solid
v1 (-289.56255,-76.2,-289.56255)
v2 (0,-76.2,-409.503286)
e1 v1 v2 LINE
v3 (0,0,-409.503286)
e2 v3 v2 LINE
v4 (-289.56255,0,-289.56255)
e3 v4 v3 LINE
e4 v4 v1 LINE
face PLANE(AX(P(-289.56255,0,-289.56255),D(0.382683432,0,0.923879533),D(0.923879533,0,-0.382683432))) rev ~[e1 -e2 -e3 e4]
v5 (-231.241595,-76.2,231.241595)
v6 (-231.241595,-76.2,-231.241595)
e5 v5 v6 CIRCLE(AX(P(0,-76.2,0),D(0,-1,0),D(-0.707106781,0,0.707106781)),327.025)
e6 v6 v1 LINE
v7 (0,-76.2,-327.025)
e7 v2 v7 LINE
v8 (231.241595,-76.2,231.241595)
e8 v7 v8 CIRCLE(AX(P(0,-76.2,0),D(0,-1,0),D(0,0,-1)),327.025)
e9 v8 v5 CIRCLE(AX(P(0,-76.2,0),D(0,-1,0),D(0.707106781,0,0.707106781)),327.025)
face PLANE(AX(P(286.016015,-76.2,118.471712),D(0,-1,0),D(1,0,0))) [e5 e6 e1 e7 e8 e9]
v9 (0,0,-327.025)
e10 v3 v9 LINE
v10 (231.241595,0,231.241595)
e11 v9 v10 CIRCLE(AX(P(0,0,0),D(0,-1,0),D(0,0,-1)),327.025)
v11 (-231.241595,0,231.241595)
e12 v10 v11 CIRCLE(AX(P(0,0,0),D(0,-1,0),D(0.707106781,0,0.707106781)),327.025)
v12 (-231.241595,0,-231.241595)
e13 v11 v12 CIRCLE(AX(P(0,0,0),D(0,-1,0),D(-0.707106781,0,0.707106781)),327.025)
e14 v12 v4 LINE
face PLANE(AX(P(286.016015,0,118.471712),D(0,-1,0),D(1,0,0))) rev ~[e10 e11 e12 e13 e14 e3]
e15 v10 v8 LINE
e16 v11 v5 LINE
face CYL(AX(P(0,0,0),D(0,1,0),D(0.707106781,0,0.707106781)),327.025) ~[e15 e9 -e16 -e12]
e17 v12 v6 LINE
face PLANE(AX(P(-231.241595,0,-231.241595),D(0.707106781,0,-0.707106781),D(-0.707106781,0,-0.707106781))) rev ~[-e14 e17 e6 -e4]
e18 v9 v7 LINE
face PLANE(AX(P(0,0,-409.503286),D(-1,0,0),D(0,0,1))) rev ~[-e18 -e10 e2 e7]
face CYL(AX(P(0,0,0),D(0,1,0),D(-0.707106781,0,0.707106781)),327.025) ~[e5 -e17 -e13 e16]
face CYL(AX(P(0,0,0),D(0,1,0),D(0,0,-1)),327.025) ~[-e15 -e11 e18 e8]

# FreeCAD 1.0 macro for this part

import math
import FreeCAD as App
import Part
import Sketcher

V = App.Vector
Q = App.Units.Quantity

doc = App.newDocument("Part")
body = doc.addObject("PartDesign::Body", "Body")

# Sketch on XZ plane
sketch1 = body.newObject("Sketcher::SketchObject", "Sketch")
sketch1.AttachmentSupport = (doc.getObject("XZ_Plane"), [""])
sketch1.MapMode = "FlatFace"
sketch1.addGeometry([
    Part.ArcOfCircle(Part.Circle(V(0, 0, 0), V(0, 0, 1), 327), math.radians(45), math.radians(135)),  # 0
    Part.ArcOfCircle(Part.Circle(V(0, 0, 0), V(0, 0, 1), 327), math.radians(135), math.radians(225)),  # 1
    Part.LineSegment(V(-231, -231, 0), V(-290, -290, 0)),  # 2
    Part.LineSegment(V(-290, -290, 0), V(0, -410, 0)),  # 3
    Part.LineSegment(V(0, -410, 0), V(0, -327, 0)),  # 4
    Part.ArcOfCircle(Part.Circle(V(0, 0, 0), V(0, 0, 1), 327), math.radians(-90), math.radians(45)),  # 5
], False)
sketch1.addConstraint([
    Sketcher.Constraint("Tangent", 0, 2, 1, 1),
    Sketcher.Constraint("Coincident", 1, 2, 2, 1),
    Sketcher.Constraint("Coincident", 2, 2, 3, 1),
    Sketcher.Constraint("Coincident", 3, 2, 4, 1),
    Sketcher.Constraint("Coincident", 4, 2, 5, 1),
    Sketcher.Constraint("Tangent", 5, 2, 0, 1),
    Sketcher.Constraint("Vertical", 4),
    Sketcher.Constraint("Coincident", 0, 3, -1, 1),
    Sketcher.Constraint("Equal", 0, 1),
    Sketcher.Constraint("Equal", 1, 5),
    Sketcher.Constraint("PointOnObject", 3, 2, -2),
    Sketcher.Constraint("Horizontal", 0, 2, 5, 2),
    Sketcher.Constraint("Vertical", 0, 2, 1, 2),
    Sketcher.Constraint("Angle", 2, Q("-135 deg")),
    Sketcher.Constraint("Radius", 0, Q("12.875 in")),
    Sketcher.Constraint("Angle", 3, Q("-22.5 deg")),
    Sketcher.Constraint("DistanceY", 4, 1, 4, 2, 82.478286),
    Sketcher.Constraint("DistanceX", 2, 2, -1, 1, 289.56255),
])
pad1 = body.newObject("PartDesign::Pad", "Pad")
pad1.Profile = sketch1
pad1.Length = Q("3 in")

doc.recompute()
